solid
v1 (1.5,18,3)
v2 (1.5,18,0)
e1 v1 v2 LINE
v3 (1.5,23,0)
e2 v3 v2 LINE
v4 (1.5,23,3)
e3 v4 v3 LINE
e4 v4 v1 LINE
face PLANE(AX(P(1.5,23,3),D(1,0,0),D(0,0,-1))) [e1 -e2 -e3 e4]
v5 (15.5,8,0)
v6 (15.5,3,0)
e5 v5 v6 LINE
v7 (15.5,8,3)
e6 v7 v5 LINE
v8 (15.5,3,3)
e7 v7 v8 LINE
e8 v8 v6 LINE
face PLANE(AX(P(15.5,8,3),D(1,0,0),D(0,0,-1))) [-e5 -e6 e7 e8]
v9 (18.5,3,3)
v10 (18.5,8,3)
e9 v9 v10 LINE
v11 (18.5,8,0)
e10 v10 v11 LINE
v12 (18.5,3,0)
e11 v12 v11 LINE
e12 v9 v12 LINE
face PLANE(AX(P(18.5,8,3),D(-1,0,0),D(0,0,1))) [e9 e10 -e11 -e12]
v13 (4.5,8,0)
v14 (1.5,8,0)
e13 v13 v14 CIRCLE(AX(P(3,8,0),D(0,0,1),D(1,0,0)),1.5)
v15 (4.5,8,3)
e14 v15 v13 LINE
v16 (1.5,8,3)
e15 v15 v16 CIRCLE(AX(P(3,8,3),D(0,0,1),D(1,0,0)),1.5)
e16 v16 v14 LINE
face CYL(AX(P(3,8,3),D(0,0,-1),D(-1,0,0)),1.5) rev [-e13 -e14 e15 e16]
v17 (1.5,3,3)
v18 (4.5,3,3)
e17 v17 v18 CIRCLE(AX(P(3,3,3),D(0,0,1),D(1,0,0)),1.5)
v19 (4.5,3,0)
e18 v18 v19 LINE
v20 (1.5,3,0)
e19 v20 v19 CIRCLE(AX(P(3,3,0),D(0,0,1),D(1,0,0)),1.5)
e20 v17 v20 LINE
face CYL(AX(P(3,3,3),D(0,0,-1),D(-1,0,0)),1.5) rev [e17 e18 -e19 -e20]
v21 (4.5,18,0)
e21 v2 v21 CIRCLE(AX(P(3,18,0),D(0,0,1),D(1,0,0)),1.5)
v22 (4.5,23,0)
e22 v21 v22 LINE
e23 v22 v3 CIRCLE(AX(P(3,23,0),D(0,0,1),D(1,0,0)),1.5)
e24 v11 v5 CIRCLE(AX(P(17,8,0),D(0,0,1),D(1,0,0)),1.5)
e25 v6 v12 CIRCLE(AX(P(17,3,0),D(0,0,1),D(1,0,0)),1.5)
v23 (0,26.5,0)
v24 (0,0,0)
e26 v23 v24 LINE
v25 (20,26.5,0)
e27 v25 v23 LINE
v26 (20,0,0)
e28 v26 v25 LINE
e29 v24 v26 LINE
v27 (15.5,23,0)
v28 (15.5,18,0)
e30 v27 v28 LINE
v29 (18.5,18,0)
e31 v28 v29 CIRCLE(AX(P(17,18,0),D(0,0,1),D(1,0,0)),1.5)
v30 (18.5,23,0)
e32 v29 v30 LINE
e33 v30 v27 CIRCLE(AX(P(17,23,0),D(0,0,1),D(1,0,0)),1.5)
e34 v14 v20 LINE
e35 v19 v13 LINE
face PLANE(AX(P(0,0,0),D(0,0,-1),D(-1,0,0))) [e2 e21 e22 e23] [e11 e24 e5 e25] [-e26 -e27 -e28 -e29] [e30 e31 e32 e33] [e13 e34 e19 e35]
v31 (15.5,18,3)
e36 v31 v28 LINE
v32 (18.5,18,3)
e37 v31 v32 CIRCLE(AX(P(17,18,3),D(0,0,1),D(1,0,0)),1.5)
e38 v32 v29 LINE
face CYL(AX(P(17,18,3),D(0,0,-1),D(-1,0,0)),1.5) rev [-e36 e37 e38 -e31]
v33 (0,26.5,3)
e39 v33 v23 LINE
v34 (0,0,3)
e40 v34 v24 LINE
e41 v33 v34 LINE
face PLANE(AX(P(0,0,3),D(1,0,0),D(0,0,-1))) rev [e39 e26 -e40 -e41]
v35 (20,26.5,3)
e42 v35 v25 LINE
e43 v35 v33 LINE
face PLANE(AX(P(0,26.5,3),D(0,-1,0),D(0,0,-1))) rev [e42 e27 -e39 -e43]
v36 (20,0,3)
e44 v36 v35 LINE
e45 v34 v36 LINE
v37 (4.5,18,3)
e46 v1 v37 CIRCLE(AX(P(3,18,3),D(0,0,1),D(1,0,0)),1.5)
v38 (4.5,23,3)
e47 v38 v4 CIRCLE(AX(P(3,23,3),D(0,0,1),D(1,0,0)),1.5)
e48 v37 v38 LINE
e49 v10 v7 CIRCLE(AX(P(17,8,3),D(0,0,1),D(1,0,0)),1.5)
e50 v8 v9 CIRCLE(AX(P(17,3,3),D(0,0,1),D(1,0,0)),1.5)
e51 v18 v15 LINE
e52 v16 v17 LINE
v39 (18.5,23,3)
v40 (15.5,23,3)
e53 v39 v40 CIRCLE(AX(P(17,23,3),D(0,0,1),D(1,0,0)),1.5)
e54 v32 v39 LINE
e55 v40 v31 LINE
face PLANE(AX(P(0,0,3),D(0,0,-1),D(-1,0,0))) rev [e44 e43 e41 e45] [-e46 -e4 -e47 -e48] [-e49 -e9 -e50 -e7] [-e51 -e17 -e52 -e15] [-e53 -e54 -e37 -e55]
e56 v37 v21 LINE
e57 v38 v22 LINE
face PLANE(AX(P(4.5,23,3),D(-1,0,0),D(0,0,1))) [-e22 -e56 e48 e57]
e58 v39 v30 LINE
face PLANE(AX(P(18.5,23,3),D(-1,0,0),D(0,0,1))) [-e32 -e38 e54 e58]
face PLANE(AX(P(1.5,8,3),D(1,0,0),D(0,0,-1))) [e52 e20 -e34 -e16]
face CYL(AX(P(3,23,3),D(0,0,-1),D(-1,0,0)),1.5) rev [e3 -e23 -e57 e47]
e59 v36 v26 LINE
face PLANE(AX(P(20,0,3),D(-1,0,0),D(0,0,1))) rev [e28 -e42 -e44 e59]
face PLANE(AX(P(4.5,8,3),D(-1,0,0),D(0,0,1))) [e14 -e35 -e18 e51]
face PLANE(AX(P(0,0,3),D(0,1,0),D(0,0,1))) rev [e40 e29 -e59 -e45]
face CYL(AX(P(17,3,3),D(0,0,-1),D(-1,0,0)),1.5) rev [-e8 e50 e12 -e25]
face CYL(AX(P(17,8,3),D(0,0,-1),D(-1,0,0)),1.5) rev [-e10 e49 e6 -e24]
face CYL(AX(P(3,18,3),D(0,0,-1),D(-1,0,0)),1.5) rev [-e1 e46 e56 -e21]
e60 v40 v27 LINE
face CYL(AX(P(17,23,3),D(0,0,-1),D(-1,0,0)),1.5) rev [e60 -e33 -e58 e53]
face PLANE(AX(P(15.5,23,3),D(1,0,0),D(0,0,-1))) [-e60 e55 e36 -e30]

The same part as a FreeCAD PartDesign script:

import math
import FreeCAD as App
import Part
import Sketcher
Q = App.Units.Quantity


def add_polygon(sketch, points):
    """Adds a closed chain of lines whose ends are joined by coincident constraints."""
    first, n = sketch.GeometryCount, len(points)
    for a, b in zip(points, points[1:] + points[:1]):
        sketch.addGeometry(Part.LineSegment(App.Vector(*a, 0), App.Vector(*b, 0)), False)
    for i in range(n):
        sketch.addConstraint(Sketcher.Constraint("Coincident", first + i, 2, first + (i + 1) % n, 1))

doc = App.newDocument("Part")
body = doc.addObject("PartDesign::Body", "Body")

# Sketch on XY plane
sketch1 = body.newObject("Sketcher::SketchObject", "Sketch")
sketch1.AttachmentSupport = (doc.getObject("XY_Plane"), [""])
sketch1.MapMode = "FlatFace"
add_polygon(sketch1, [(0, 26.5), (0, 0), (20, 0), (20, 26.5)])  # lines 0-3
sketch1.addGeometry(Part.ArcOfCircle(Part.Circle(App.Vector(3, 8, 0), App.Vector(0, 0, 1), 1.5), math.radians(0), math.radians(180)), False)  # 4
sketch1.addGeometry(Part.LineSegment(App.Vector(4.5, 8, 0), App.Vector(4.5, 3, 0)), False)  # 5
sketch1.addGeometry(Part.ArcOfCircle(Part.Circle(App.Vector(3, 3, 0), App.Vector(0, 0, 1), 1.5), math.radians(180), math.radians(360)), False)  # 6
sketch1.addGeometry(Part.LineSegment(App.Vector(1.5, 3, 0), App.Vector(1.5, 8, 0)), False)  # 7
sketch1.addGeometry(Part.ArcOfCircle(Part.Circle(App.Vector(17, 8, 0), App.Vector(0, 0, 1), 1.5), math.radians(0), math.radians(180)), False)  # 8
sketch1.addGeometry(Part.LineSegment(App.Vector(18.5, 8, 0), App.Vector(18.5, 3, 0)), False)  # 9
sketch1.addGeometry(Part.ArcOfCircle(Part.Circle(App.Vector(17, 3, 0), App.Vector(0, 0, 1), 1.5), math.radians(180), math.radians(360)), False)  # 10
sketch1.addGeometry(Part.LineSegment(App.Vector(15.5, 3, 0), App.Vector(15.5, 8, 0)), False)  # 11
sketch1.addGeometry(Part.ArcOfCircle(Part.Circle(App.Vector(3, 23, 0), App.Vector(0, 0, 1), 1.5), math.radians(0), math.radians(180)), False)  # 12
sketch1.addGeometry(Part.LineSegment(App.Vector(4.5, 23, 0), App.Vector(4.5, 18, 0)), False)  # 13
sketch1.addGeometry(Part.ArcOfCircle(Part.Circle(App.Vector(3, 18, 0), App.Vector(0, 0, 1), 1.5), math.radians(180), math.radians(360)), False)  # 14
sketch1.addGeometry(Part.LineSegment(App.Vector(1.5, 18, 0), App.Vector(1.5, 23, 0)), False)  # 15
sketch1.addGeometry(Part.ArcOfCircle(Part.Circle(App.Vector(17, 23, 0), App.Vector(0, 0, 1), 1.5), math.radians(0), math.radians(180)), False)  # 16
sketch1.addGeometry(Part.LineSegment(App.Vector(18.5, 23, 0), App.Vector(18.5, 18, 0)), False)  # 17
sketch1.addGeometry(Part.ArcOfCircle(Part.Circle(App.Vector(17, 18, 0), App.Vector(0, 0, 1), 1.5), math.radians(180), math.radians(360)), False)  # 18
sketch1.addGeometry(Part.LineSegment(App.Vector(15.5, 18, 0), App.Vector(15.5, 23, 0)), False)  # 19
sketch1.addConstraint([
    Sketcher.Constraint("Tangent", 4, 1, 5, 1),
    Sketcher.Constraint("Tangent", 5, 2, 6, 2),
    Sketcher.Constraint("Tangent", 6, 1, 7, 1),
    Sketcher.Constraint("Tangent", 7, 2, 4, 2),
    Sketcher.Constraint("Tangent", 8, 1, 9, 1),
    Sketcher.Constraint("Tangent", 9, 2, 10, 2),
    Sketcher.Constraint("Tangent", 10, 1, 11, 1),
    Sketcher.Constraint("Tangent", 11, 2, 8, 2),
    Sketcher.Constraint("Tangent", 12, 1, 13, 1),
    Sketcher.Constraint("Tangent", 13, 2, 14, 2),
    Sketcher.Constraint("Tangent", 14, 1, 15, 1),
    Sketcher.Constraint("Tangent", 15, 2, 12, 2),
    Sketcher.Constraint("Tangent", 16, 1, 17, 1),
    Sketcher.Constraint("Tangent", 17, 2, 18, 2),
    Sketcher.Constraint("Tangent", 18, 1, 19, 1),
    Sketcher.Constraint("Tangent", 19, 2, 16, 2),
    Sketcher.Constraint("Vertical", 0),
    Sketcher.Constraint("Horizontal", 1),
    Sketcher.Constraint("Vertical", 2),
    Sketcher.Constraint("Horizontal", 3),
    Sketcher.Constraint("Vertical", 5),
    Sketcher.Constraint("Vertical", 7),
    Sketcher.Constraint("Vertical", 9),
    Sketcher.Constraint("Vertical", 11),
    Sketcher.Constraint("Vertical", 13),
    Sketcher.Constraint("Vertical", 15),
    Sketcher.Constraint("Vertical", 17),
    Sketcher.Constraint("Vertical", 19),
    Sketcher.Constraint("Coincident", 0, 2, -1, 1),
    Sketcher.Constraint("Equal", 6, 8),
    Sketcher.Constraint("Equal", 10, 12),
    Sketcher.Constraint("Equal", 14, 16),
    Sketcher.Constraint("Horizontal", 4, 3, 8, 3),
    Sketcher.Constraint("Horizontal", 6, 3, 10, 3),
    Sketcher.Constraint("Horizontal", 12, 3, 16, 3),
    Sketcher.Constraint("Horizontal", 14, 3, 18, 3),
    Sketcher.Constraint("Vertical", 6, 3, 12, 3),
    Sketcher.Constraint("Vertical", 10, 3, 16, 3),
    Sketcher.Constraint("Equal", 11, 13),
    Sketcher.Constraint("Radius", 4, Q("1.5 mm")),
    Sketcher.Constraint("DistanceX", 1, 1, 1, 2, Q("20 mm")),
    Sketcher.Constraint("DistanceY", 5, 2, 5, 1, Q("5 mm")),
    Sketcher.Constraint("DistanceY", 0, 2, 0, 1, Q("26.5 mm")),
    Sketcher.Constraint("DistanceX", -1, 1, 4, 3, Q("3 mm")),
    Sketcher.Constraint("DistanceY", -1, 1, 4, 3, Q("8 mm")),
    Sketcher.Constraint("DistanceX", -1, 1, 8, 3, Q("17 mm")),
    Sketcher.Constraint("DistanceY", -1, 1, 12, 3, Q("23 mm")),
])
pad1 = body.newObject("PartDesign::Pad", "Pad")
pad1.Profile = sketch1
pad1.Length = 3

doc.recompute()
